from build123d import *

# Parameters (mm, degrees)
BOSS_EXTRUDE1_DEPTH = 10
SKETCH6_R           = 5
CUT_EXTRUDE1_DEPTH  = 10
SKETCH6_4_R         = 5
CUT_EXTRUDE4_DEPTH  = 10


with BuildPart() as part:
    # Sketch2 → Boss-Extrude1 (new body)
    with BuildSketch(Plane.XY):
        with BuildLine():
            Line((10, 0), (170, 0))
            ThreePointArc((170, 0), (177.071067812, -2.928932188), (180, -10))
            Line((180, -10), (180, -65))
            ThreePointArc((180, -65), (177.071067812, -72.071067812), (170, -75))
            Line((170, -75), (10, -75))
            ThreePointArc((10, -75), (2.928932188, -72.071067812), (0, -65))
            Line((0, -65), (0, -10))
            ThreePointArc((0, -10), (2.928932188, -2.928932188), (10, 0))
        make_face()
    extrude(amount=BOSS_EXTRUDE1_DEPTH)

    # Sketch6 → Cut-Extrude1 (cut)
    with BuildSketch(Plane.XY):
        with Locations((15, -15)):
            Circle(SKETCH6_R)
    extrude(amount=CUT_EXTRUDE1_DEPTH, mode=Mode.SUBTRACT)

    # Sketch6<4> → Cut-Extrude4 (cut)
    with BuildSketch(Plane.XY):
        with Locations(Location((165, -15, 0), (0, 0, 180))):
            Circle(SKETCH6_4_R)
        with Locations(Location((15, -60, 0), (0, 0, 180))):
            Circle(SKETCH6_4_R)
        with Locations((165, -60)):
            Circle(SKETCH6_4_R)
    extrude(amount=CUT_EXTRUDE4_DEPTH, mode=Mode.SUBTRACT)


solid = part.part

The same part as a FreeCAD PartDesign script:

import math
import FreeCAD as App
import Part
import Sketcher

V = App.Vector
Q = App.Units.Quantity

doc = App.newDocument("Part")
body = doc.addObject("PartDesign::Body", "Body")

sketch1 = body.newObject("Sketcher::SketchObject", "Sketch")
sketch1.AttachmentSupport = (doc.getObject("XY_Plane"), [""])
sketch1.MapMode = "FlatFace"
sketch1.addGeometry([
    Part.LineSegment(V(170, 0, 0), V(10, 0, 0)),
    Part.ArcOfCircle(Part.Circle(V(10, -10, 0), V(0, 0, 1), 10), math.radians(90), math.radians(180)),
    Part.LineSegment(V(0, -10, 0), V(0, -65, 0)),
    Part.ArcOfCircle(Part.Circle(V(10, -65, 0), V(0, 0, 1), 10), math.radians(180), math.radians(270)),
    Part.LineSegment(V(10, -75, 0), V(170, -75, 0)),
    Part.ArcOfCircle(Part.Circle(V(170, -65, 0), V(0, 0, 1), 10), math.radians(-90), math.radians(0)),
    Part.LineSegment(V(180, -65, 0), V(180, -10, 0)),
    Part.ArcOfCircle(Part.Circle(V(170, -10, 0), V(0, 0, 1), 10), math.radians(0), math.radians(90)),
], False)
sketch1.addConstraint([
    Sketcher.Constraint("Tangent", 0, 2, 1, 1),
    Sketcher.Constraint("Tangent", 1, 2, 2, 1),
    Sketcher.Constraint("Tangent", 2, 2, 3, 1),
    Sketcher.Constraint("Tangent", 3, 2, 4, 1),
    Sketcher.Constraint("Tangent", 4, 2, 5, 1),
    Sketcher.Constraint("Tangent", 5, 2, 6, 1),
    Sketcher.Constraint("Tangent", 6, 2, 7, 1),
    Sketcher.Constraint("Tangent", 7, 2, 0, 1),
    Sketcher.Constraint("Horizontal", 0),
    Sketcher.Constraint("Vertical", 2),
    Sketcher.Constraint("Horizontal", 4),
    Sketcher.Constraint("Vertical", 6),
    Sketcher.Constraint("Equal", 1, 3),
    Sketcher.Constraint("Equal", 3, 5),
    Sketcher.Constraint("Equal", 5, 7),
    Sketcher.Constraint("PointOnObject", 0, 2, -1),
    Sketcher.Constraint("PointOnObject", 1, 2, -2),
    Sketcher.Constraint("Radius", 1, Q("10 mm")),
    Sketcher.Constraint("DistanceX", 0, 2, 0, 1, Q("160 mm")),
    Sketcher.Constraint("DistanceY", 2, 2, 2, 1, Q("55 mm")),
])
pad1 = body.newObject("PartDesign::Pad", "Pad")
pad1.Profile = sketch1
pad1.Length = 10

sketch2 = body.newObject("Sketcher::SketchObject", "Sketch001")
sketch2.AttachmentSupport = (doc.getObject("XY_Plane"), [""])
sketch2.MapMode = "FlatFace"
sketch2.addGeometry(Part.Circle(V(15, -15, 0), V(0, 0, 1), 5), False)
sketch2.addConstraint([
    Sketcher.Constraint("Diameter", 0, Q("10 mm")),
    Sketcher.Constraint("DistanceX", -1, 1, 0, 3, Q("15 mm")),
    Sketcher.Constraint("DistanceY", 0, 3, -1, 1, Q("15 mm")),
])
pocket1 = body.newObject("PartDesign::Pocket", "Pocket")
pocket1.Profile = sketch2
pocket1.Length = 10
pocket1.Reversed = True

sketch3 = body.newObject("Sketcher::SketchObject", "Sketch002")
sketch3.AttachmentSupport = (doc.getObject("XY_Plane"), [""])
sketch3.MapMode = "FlatFace"
sketch3.addGeometry([
    Part.Circle(V(165, -15, 0), V(0, 0, 1), 5),
    Part.Circle(V(15, -60, 0), V(0, 0, 1), 5),
    Part.Circle(V(165, -60, 0), V(0, 0, 1), 5),
], False)
sketch3.addConstraint([
    Sketcher.Constraint("Equal", 0, 1),
    Sketcher.Constraint("Equal", 1, 2),
    Sketcher.Constraint("Horizontal", 1, 3, 2, 3),
    Sketcher.Constraint("Vertical", 0, 3, 2, 3),
    Sketcher.Constraint("Diameter", 0, Q("10 mm")),
    Sketcher.Constraint("DistanceX", -1, 1, 0, 3, Q("165 mm")),
    Sketcher.Constraint("DistanceY", 0, 3, -1, 1, Q("15 mm")),
    Sketcher.Constraint("DistanceX", -1, 1, 1, 3, Q("15 mm")),
    Sketcher.Constraint("DistanceY", 1, 3, -1, 1, Q("60 mm")),
])
pocket2 = body.newObject("PartDesign::Pocket", "Pocket001")
pocket2.Profile = sketch3
pocket2.Length = 10
pocket2.Reversed = True

doc.recompute()
